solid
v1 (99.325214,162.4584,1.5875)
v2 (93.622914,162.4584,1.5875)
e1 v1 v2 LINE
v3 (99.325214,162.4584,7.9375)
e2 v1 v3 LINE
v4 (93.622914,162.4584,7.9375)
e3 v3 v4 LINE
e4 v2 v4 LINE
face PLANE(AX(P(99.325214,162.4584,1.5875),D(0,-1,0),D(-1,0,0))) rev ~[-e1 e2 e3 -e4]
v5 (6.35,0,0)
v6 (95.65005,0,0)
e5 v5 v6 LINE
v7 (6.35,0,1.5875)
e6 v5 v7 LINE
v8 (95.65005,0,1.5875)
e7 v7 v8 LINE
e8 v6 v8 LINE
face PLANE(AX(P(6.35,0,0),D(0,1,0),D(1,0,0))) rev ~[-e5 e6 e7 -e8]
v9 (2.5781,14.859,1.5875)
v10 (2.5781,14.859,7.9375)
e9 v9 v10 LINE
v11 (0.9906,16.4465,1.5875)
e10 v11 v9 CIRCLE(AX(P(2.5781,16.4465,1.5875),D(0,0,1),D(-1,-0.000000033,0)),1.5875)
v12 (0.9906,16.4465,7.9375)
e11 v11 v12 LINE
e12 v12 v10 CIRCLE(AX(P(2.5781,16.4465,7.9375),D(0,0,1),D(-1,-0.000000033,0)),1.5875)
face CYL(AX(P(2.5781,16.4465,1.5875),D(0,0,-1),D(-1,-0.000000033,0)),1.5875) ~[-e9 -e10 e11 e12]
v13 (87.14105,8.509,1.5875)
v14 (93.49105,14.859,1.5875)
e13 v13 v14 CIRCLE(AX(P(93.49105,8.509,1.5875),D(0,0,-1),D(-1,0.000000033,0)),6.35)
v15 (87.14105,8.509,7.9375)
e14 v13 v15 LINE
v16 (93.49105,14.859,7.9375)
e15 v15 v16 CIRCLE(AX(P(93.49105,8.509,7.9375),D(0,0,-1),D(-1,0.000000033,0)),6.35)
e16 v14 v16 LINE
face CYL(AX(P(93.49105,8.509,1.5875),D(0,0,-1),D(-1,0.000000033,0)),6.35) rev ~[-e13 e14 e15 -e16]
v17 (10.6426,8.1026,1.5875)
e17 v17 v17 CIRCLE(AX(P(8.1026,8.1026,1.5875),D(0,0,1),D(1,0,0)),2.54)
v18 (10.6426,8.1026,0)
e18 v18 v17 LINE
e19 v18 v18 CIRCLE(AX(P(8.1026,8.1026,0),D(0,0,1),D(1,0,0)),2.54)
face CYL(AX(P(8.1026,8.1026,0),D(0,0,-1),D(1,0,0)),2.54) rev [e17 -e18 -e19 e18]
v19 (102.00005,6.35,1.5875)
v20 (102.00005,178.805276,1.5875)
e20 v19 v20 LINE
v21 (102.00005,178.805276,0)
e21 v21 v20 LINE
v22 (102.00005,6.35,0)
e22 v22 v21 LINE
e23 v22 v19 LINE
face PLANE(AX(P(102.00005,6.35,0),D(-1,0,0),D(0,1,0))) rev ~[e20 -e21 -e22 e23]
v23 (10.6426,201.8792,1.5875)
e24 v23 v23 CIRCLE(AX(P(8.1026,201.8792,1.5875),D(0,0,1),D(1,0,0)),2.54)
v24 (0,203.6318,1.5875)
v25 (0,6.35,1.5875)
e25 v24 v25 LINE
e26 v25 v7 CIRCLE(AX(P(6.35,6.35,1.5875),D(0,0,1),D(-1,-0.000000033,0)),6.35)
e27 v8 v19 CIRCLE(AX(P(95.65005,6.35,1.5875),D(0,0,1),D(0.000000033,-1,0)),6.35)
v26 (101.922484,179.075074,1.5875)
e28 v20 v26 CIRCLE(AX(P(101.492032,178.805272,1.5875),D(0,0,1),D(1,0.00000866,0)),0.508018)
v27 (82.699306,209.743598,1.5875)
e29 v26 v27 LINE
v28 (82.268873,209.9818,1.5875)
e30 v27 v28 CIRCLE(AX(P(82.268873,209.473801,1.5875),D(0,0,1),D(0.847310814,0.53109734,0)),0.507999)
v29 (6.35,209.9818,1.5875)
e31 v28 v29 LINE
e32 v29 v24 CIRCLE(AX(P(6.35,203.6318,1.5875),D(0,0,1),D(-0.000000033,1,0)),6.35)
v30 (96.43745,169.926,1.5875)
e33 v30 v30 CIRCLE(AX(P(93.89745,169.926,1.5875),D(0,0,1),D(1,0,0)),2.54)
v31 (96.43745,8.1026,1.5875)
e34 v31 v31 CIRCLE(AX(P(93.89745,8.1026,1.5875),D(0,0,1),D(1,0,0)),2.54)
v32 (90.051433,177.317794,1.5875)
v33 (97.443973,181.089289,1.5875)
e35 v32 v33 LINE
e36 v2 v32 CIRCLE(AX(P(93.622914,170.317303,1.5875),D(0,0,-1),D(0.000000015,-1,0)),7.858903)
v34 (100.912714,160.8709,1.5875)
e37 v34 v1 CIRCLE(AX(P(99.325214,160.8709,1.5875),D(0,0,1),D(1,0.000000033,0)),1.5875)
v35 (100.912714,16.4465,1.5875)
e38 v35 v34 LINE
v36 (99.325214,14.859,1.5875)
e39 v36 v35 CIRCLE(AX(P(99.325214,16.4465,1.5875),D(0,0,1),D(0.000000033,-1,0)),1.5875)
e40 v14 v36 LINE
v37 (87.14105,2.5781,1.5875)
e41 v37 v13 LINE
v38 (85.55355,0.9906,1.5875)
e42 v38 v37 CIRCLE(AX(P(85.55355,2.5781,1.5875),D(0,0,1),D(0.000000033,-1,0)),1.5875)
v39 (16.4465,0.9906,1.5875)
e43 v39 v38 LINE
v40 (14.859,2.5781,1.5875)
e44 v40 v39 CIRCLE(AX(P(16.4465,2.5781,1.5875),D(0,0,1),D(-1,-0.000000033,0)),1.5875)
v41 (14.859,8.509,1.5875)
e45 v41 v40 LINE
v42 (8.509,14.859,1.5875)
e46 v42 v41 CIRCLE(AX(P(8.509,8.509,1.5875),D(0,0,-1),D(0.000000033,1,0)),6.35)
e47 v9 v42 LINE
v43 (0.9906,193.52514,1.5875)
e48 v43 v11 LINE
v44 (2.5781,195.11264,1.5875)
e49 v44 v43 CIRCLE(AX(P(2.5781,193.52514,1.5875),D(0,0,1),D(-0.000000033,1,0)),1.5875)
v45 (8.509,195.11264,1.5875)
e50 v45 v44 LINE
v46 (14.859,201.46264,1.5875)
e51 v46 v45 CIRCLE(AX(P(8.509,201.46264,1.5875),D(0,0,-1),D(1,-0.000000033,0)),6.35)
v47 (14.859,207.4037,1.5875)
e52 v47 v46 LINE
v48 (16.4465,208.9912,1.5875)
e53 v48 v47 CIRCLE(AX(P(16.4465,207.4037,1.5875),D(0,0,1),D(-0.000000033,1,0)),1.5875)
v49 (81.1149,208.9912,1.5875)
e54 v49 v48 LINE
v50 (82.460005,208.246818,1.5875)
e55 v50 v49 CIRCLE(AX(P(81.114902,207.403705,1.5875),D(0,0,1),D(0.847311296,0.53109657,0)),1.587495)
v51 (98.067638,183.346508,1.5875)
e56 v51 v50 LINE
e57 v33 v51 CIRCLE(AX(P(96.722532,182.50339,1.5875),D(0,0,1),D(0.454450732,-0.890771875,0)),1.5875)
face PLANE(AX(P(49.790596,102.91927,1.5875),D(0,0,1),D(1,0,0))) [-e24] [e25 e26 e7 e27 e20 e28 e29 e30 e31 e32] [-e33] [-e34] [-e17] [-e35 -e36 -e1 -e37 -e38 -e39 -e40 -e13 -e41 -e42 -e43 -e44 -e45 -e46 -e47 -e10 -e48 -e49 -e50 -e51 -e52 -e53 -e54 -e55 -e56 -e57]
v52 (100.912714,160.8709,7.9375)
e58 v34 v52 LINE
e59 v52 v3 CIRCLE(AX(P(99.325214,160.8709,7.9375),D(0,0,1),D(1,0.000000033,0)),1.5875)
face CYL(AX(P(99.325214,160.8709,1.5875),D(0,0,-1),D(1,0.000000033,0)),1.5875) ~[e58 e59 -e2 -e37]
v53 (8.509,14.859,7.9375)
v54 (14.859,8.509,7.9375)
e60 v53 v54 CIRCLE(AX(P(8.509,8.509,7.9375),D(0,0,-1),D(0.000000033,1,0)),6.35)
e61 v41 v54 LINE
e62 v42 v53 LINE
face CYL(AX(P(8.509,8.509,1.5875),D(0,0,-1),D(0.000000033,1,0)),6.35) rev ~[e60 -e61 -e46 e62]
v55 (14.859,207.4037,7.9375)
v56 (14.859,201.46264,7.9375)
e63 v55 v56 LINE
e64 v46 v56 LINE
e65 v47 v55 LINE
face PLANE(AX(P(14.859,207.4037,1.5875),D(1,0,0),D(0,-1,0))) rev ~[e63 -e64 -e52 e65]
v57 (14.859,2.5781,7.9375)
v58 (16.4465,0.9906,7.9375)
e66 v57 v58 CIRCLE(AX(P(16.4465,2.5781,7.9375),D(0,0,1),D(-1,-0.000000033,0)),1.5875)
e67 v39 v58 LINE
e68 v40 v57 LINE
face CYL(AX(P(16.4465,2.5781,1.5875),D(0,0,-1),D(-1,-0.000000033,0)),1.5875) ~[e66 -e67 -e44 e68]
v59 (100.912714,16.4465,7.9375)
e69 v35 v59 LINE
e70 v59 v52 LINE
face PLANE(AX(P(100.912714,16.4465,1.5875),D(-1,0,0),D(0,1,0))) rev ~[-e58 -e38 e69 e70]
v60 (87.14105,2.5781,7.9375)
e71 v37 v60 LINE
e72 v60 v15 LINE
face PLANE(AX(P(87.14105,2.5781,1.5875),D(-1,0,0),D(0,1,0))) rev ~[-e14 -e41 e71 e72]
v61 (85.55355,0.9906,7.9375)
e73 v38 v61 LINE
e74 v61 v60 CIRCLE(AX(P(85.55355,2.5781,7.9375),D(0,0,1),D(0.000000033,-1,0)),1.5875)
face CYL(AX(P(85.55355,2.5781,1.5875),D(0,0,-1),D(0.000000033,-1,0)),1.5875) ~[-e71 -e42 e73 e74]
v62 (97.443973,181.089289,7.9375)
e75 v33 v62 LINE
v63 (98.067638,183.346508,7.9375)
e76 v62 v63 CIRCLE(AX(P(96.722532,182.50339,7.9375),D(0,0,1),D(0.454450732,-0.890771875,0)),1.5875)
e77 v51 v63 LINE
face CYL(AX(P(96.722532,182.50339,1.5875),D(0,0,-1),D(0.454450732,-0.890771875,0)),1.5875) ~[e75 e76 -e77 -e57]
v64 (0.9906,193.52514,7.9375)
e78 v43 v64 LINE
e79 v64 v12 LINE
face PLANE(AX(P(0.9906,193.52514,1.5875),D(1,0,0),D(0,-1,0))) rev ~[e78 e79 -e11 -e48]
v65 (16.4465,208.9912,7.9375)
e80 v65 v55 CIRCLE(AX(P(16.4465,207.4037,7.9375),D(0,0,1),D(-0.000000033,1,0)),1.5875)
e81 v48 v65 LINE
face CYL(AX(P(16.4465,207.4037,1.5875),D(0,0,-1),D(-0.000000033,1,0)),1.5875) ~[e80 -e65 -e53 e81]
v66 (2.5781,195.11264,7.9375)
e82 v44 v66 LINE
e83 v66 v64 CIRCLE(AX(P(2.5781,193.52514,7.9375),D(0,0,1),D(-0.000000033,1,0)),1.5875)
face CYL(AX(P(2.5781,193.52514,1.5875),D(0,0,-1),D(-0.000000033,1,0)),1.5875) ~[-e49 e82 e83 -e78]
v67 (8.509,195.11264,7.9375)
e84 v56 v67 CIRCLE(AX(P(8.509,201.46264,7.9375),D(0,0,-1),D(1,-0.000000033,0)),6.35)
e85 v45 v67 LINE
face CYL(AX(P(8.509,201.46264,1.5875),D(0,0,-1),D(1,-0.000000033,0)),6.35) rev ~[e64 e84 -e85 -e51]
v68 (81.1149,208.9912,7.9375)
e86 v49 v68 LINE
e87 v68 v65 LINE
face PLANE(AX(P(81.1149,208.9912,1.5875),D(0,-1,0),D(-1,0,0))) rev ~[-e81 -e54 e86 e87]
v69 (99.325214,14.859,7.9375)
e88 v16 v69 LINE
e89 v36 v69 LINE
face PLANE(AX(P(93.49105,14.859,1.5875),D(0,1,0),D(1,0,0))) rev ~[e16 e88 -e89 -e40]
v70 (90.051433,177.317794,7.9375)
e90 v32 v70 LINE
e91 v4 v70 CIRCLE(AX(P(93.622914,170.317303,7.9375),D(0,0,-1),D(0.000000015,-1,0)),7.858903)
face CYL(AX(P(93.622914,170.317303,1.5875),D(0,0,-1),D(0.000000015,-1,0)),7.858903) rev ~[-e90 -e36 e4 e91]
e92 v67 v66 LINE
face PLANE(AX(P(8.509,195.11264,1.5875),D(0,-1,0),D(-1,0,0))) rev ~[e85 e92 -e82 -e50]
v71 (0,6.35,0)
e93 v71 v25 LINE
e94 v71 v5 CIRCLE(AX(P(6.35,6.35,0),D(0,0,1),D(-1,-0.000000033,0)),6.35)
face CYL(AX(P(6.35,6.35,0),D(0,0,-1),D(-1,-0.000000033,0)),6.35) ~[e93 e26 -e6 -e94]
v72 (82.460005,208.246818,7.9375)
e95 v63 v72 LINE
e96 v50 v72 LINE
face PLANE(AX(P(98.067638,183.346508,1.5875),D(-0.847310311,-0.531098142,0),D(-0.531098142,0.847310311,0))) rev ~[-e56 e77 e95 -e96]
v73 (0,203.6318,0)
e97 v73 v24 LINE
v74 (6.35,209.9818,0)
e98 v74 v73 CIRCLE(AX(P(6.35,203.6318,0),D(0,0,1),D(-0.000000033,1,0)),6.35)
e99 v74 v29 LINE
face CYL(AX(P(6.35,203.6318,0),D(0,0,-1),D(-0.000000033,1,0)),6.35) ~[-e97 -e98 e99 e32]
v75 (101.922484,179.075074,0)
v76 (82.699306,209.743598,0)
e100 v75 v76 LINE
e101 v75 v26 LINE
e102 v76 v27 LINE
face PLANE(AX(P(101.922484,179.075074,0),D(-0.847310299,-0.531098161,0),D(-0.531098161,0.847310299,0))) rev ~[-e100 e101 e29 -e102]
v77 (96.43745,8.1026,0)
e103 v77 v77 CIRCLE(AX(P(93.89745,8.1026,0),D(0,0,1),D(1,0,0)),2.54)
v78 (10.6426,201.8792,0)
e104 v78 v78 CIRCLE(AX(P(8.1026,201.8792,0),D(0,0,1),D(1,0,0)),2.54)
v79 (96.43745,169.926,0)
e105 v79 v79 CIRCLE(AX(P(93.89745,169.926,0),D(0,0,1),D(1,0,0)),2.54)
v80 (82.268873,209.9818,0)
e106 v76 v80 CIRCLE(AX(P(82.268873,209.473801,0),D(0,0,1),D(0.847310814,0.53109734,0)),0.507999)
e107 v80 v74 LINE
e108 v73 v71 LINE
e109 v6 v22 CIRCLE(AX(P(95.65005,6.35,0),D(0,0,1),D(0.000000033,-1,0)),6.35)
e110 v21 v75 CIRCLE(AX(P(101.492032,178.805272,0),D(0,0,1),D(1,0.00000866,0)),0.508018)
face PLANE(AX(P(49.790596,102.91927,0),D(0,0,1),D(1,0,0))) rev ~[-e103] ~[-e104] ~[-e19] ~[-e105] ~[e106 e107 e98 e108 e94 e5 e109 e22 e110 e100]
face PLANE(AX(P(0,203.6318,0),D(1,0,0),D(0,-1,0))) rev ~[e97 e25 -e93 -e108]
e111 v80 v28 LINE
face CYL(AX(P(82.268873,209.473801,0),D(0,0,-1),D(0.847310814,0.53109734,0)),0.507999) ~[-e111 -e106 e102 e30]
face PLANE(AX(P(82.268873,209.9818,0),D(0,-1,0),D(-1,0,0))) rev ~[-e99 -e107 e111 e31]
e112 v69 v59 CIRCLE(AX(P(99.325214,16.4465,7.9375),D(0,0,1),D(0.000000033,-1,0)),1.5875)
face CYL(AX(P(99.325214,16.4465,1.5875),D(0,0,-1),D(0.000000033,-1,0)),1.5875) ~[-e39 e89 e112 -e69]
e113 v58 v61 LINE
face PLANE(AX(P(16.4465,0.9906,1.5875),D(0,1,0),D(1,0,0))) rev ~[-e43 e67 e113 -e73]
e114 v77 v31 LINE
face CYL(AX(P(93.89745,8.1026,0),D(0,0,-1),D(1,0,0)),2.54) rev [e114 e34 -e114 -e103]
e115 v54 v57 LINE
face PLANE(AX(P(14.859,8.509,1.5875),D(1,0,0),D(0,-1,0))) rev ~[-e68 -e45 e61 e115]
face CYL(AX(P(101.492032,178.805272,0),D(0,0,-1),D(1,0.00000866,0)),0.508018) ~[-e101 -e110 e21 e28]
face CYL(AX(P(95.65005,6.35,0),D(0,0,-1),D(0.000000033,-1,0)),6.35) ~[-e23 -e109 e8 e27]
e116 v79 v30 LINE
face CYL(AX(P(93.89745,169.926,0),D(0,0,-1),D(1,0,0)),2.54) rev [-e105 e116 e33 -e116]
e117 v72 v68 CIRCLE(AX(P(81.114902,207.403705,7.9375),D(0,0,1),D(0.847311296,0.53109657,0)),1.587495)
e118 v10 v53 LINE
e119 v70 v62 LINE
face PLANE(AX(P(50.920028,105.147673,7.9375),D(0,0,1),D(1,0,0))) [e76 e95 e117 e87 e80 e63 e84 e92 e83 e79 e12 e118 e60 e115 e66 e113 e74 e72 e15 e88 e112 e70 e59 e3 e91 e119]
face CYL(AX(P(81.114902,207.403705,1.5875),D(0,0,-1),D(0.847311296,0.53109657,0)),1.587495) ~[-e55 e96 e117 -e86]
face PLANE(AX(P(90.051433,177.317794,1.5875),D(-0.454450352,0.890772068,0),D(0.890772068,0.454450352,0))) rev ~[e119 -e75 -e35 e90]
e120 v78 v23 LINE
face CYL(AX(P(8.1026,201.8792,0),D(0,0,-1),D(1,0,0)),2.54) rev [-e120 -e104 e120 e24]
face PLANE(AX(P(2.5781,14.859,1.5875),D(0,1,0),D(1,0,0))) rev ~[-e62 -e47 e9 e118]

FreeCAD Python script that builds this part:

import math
import FreeCAD as App
import Part
import Sketcher
from FreeCAD import Vector
Q = App.Units.Quantity

doc = App.newDocument("Part")
body = doc.addObject("PartDesign::Body", "Body")

# Sketch on XY plane
sketch1 = doc.addObject("Sketcher::SketchObject", "Sketch")
body.addObject(sketch1)
sketch1.AttachmentSupport = (doc.XY_Plane, [""])
sketch1.MapMode = "FlatFace"
sketch1.addGeometry([
    Part.ArcOfCircle(Part.Circle(Vector(6.35, 6.35, 0), Vector(0, 0, 1), 6.35), math.radians(-179.999998), math.radians(-90.000002)),  # 0
    Part.LineSegment(Vector(6.35, 0, 0), Vector(95.65005, 0, 0)),  # 1
    Part.ArcOfCircle(Part.Circle(Vector(95.65005, 6.35, 0), Vector(0, 0, 1), 6.35), math.radians(-89.999998), math.radians(-0.000002)),  # 2
    Part.LineSegment(Vector(102.00005, 6.35, 0), Vector(102.00005, 178.805276, 0)),  # 3
    Part.ArcOfCircle(Part.Circle(Vector(101.492032, 178.805272, 0), Vector(0, 0, 1), 0.508018), math.radians(0.000496), math.radians(32.079028)),  # 4
    Part.LineSegment(Vector(101.922484, 179.075074, 0), Vector(82.699306, 209.743598, 0)),  # 5
    Part.ArcOfCircle(Part.Circle(Vector(82.268873, 209.473801, 0), Vector(0, 0, 1), 0.507999), math.radians(32.079628), math.radians(90.000012)),  # 6
    Part.LineSegment(Vector(82.268873, 209.9818, 0), Vector(6.35, 209.9818, 0)),  # 7
    Part.ArcOfCircle(Part.Circle(Vector(6.35, 203.6318, 0), Vector(0, 0, 1), 6.35), math.radians(90.000002), math.radians(179.999998)),  # 8
    Part.LineSegment(Vector(0, 203.6318, 0), Vector(0, 6.35, 0)),  # 9
    Part.Circle(Vector(8.1026, 8.1026, 0), Vector(0, 0, 1), 2.54),  # 10
    Part.Circle(Vector(93.89745, 8.1026, 0), Vector(0, 0, 1), 2.54),  # 11
    Part.Circle(Vector(8.1026, 201.8792, 0), Vector(0, 0, 1), 2.54),  # 12
    Part.Circle(Vector(93.89745, 169.926, 0), Vector(0, 0, 1), 2.54),  # 13
], False)
sketch1.addConstraint([
    Sketcher.Constraint("Coincident", 0, 2, 1, 1),
    Sketcher.Constraint("Coincident", 1, 2, 2, 1),
    Sketcher.Constraint("Coincident", 2, 2, 3, 1),
    Sketcher.Constraint("Coincident", 3, 2, 4, 1),
    Sketcher.Constraint("Coincident", 4, 2, 5, 1),
    Sketcher.Constraint("Coincident", 5, 2, 6, 1),
    Sketcher.Constraint("Coincident", 6, 2, 7, 1),
    Sketcher.Constraint("Coincident", 7, 2, 8, 1),
    Sketcher.Constraint("Coincident", 8, 2, 9, 1),
    Sketcher.Constraint("Coincident", 9, 2, 0, 1),
    Sketcher.Constraint("Horizontal", 1),
    Sketcher.Constraint("Vertical", 3),
    Sketcher.Constraint("Horizontal", 7),
    Sketcher.Constraint("Vertical", 9),
    Sketcher.Constraint("PointOnObject", 0, 2, -1),
    Sketcher.Constraint("PointOnObject", 8, 2, -2),
    Sketcher.Constraint("Diameter", 10, Q("0.2 in")),
    Sketcher.Constraint("Diameter", 11, Q("0.2 in")),
    Sketcher.Constraint("Diameter", 12, Q("0.2 in")),
    Sketcher.Constraint("Diameter", 13, Q("0.2 in")),
    Sketcher.Constraint("Radius", 0, Q("0.25 in")),
    Sketcher.Constraint("Radius", 2, Q("0.25 in")),
    Sketcher.Constraint("Radius", 6, Q("0.02 in")),
    Sketcher.Constraint("Radius", 8, Q("0.25 in")),
    Sketcher.Constraint("DistanceY", 9, 2, 9, 1, Q("7.767 in")),
    Sketcher.Constraint("DistanceY", -1, 1, 13, 3, Q("6.69 in")),
    Sketcher.Constraint("DistanceX", -1, 1, 0, 2, Q("0.25 in")),
    Sketcher.Constraint("DistanceY", -1, 1, 2, 2, Q("0.25 in")),
    Sketcher.Constraint("DistanceX", -1, 1, 7, 2, Q("0.25 in")),
    Sketcher.Constraint("DistanceY", -1, 1, 9, 2, Q("0.25 in")),
    Sketcher.Constraint("DistanceX", 1, 2, 2, 2, Q("0.25 in")),
    Sketcher.Constraint("DistanceY", 8, 2, 7, 2, Q("0.25 in")),
    Sketcher.Constraint("DistanceX", -1, 1, 10, 3, Q("0.319 in")),
    Sketcher.Constraint("DistanceY", -1, 1, 10, 3, Q("0.319 in")),
    Sketcher.Constraint("DistanceY", -1, 1, 11, 3, Q("0.319 in")),
    Sketcher.Constraint("DistanceX", -1, 1, 12, 3, Q("0.319 in")),
    Sketcher.Constraint("DistanceY", -1, 1, 12, 3, Q("7.948 in")),
    Sketcher.Constraint("DistanceX", 11, 3, 2, 3, Q("0.069 in")),
    Sketcher.Constraint("DistanceX", 13, 3, 3, 2, Q("0.319 in")),
    Sketcher.Constraint("Radius", 4, Q("0.508018 mm")),
    Sketcher.Constraint("DistanceX", 1, 1, 1, 2, Q("89.30005 mm")),
    Sketcher.Constraint("DistanceY", -1, 1, 5, 2, Q("209.743598 mm")),
    Sketcher.Constraint("DistanceY", 3, 2, 4, 2, Q("0.269798 mm")),
    Sketcher.Constraint("Distance", 5, Q("36.195151 mm")),
    Sketcher.Constraint("DistanceX", 7, 2, 7, 1, Q("75.918873 mm")),
    Sketcher.Constraint("DistanceY", 3, 1, 3, 2, Q("172.455276 mm")),
    Sketcher.Constraint("DistanceY", -1, 1, 4, 3, Q("178.805272 mm")),
])
pad1 = doc.addObject("PartDesign::Pad", "Pad")
body.addObject(pad1)
pad1.Profile = sketch1
pad1.Length = Q("0.0625 in")

# Sketch on XY plane
sketch2 = doc.addObject("Sketcher::SketchObject", "Sketch001")
body.addObject(sketch2)
sketch2.AttachmentSupport = (doc.XY_Plane, [""])
sketch2.MapMode = "FlatFace"
sketch2.AttachmentOffset = App.Placement(Vector(0, 0, 0.0625 * 25.4), App.Rotation())
sketch2.addGeometry([
    Part.LineSegment(Vector(81.1, 209, 0), Vector(16.4, 209, 0)),  # 0
    Part.ArcOfCircle(Part.Circle(Vector(16.4, 207.4, 0), Vector(0, 0, 1), 1.6), math.radians(90), math.radians(180)),  # 1
    Part.LineSegment(Vector(14.9, 207.4, 0), Vector(14.9, 201.5, 0)),  # 2
    Part.ArcOfCircle(Part.Circle(Vector(8.5, 201.5, 0), Vector(0, 0, 1), 6.4), math.radians(-90), math.radians(0)),  # 3
    Part.LineSegment(Vector(8.5, 195.1, 0), Vector(2.6, 195.1, 0)),  # 4
    Part.ArcOfCircle(Part.Circle(Vector(2.6, 193.5, 0), Vector(0, 0, 1), 1.6), math.radians(90), math.radians(180)),  # 5
    Part.LineSegment(Vector(1, 193.5, 0), Vector(1, 16.4, 0)),  # 6
    Part.ArcOfCircle(Part.Circle(Vector(2.6, 16.4, 0), Vector(0, 0, 1), 1.6), math.radians(-180), math.radians(-90)),  # 7
    Part.LineSegment(Vector(2.6, 14.9, 0), Vector(8.5, 14.9, 0)),  # 8
    Part.ArcOfCircle(Part.Circle(Vector(8.5, 8.5, 0), Vector(0, 0, 1), 6.4), math.radians(0), math.radians(90)),  # 9
    Part.LineSegment(Vector(14.9, 8.5, 0), Vector(14.9, 2.6, 0)),  # 10
    Part.ArcOfCircle(Part.Circle(Vector(16.4, 2.6, 0), Vector(0, 0, 1), 1.6), math.radians(-180), math.radians(-90)),  # 11
    Part.LineSegment(Vector(16.4, 1, 0), Vector(85.6, 1, 0)),  # 12
    Part.ArcOfCircle(Part.Circle(Vector(85.6, 2.6, 0), Vector(0, 0, 1), 1.6), math.radians(-90), math.radians(0)),  # 13
    Part.LineSegment(Vector(87.1, 2.6, 0), Vector(87.1, 8.5, 0)),  # 14
    Part.ArcOfCircle(Part.Circle(Vector(93.5, 8.5, 0), Vector(0, 0, 1), 6.4), math.radians(90), math.radians(180)),  # 15
    Part.LineSegment(Vector(93.5, 14.9, 0), Vector(99.3, 14.9, 0)),  # 16
    Part.ArcOfCircle(Part.Circle(Vector(99.3, 16.4, 0), Vector(0, 0, 1), 1.6), math.radians(-90), math.radians(0)),  # 17
    Part.LineSegment(Vector(100.9, 16.4, 0), Vector(100.9, 160.9, 0)),  # 18
    Part.ArcOfCircle(Part.Circle(Vector(99.3, 160.9, 0), Vector(0, 0, 1), 1.6), math.radians(0), math.radians(90)),  # 19
    Part.LineSegment(Vector(99.3, 162.5, 0), Vector(93.6, 162.5, 0)),  # 20
    Part.ArcOfCircle(Part.Circle(Vector(93.6, 170.3, 0), Vector(0, 0, 1), 7.9), math.radians(117), math.radians(270)),  # 21
    Part.LineSegment(Vector(90.1, 177.3, 0), Vector(97.4, 181.1, 0)),  # 22
    Part.ArcOfCircle(Part.Circle(Vector(96.7, 182.5, 0), Vector(0, 0, 1), 1.6), math.radians(-63), math.radians(32)),  # 23
    Part.LineSegment(Vector(98.1, 183.3, 0), Vector(82.5, 208.2, 0)),  # 24
    Part.ArcOfCircle(Part.Circle(Vector(81.1, 207.4, 0), Vector(0, 0, 1), 1.6), math.radians(32), math.radians(90)),  # 25
], False)
sketch2.addConstraint([
    Sketcher.Constraint("Tangent", 0, 2, 1, 1),
    Sketcher.Constraint("Tangent", 1, 2, 2, 1),
    Sketcher.Constraint("Tangent", 2, 2, 3, 2),
    Sketcher.Constraint("Tangent", 3, 1, 4, 1),
    Sketcher.Constraint("Tangent", 4, 2, 5, 1),
    Sketcher.Constraint("Tangent", 5, 2, 6, 1),
    Sketcher.Constraint("Tangent", 6, 2, 7, 1),
    Sketcher.Constraint("Tangent", 7, 2, 8, 1),
    Sketcher.Constraint("Tangent", 8, 2, 9, 2),
    Sketcher.Constraint("Tangent", 9, 1, 10, 1),
    Sketcher.Constraint("Tangent", 10, 2, 11, 1),
    Sketcher.Constraint("Tangent", 11, 2, 12, 1),
    Sketcher.Constraint("Tangent", 12, 2, 13, 1),
    Sketcher.Constraint("Tangent", 13, 2, 14, 1),
    Sketcher.Constraint("Tangent", 14, 2, 15, 2),
    Sketcher.Constraint("Tangent", 15, 1, 16, 1),
    Sketcher.Constraint("Tangent", 16, 2, 17, 1),
    Sketcher.Constraint("Tangent", 17, 2, 18, 1),
    Sketcher.Constraint("Tangent", 18, 2, 19, 1),
    Sketcher.Constraint("Tangent", 19, 2, 20, 1),
    Sketcher.Constraint("Tangent", 20, 2, 21, 2),
    Sketcher.Constraint("Tangent", 21, 1, 22, 1),
    Sketcher.Constraint("Tangent", 22, 2, 23, 1),
    Sketcher.Constraint("Tangent", 23, 2, 24, 1),
    Sketcher.Constraint("Tangent", 24, 2, 25, 1),
    Sketcher.Constraint("Tangent", 25, 2, 0, 1),
    Sketcher.Constraint("Horizontal", 0),
    Sketcher.Constraint("Vertical", 2),
    Sketcher.Constraint("Horizontal", 4),
    Sketcher.Constraint("Vertical", 6),
    Sketcher.Constraint("Horizontal", 8),
    Sketcher.Constraint("Vertical", 10),
    Sketcher.Constraint("Horizontal", 12),
    Sketcher.Constraint("Vertical", 14),
    Sketcher.Constraint("Horizontal", 16),
    Sketcher.Constraint("Vertical", 18),
    Sketcher.Constraint("Horizontal", 20),
    Sketcher.Constraint("Equal", 1, 5),
    Sketcher.Constraint("Equal", 5, 7),
    Sketcher.Constraint("Equal", 3, 9),
    Sketcher.Constraint("Equal", 7, 11),
    Sketcher.Constraint("Equal", 11, 13),
    Sketcher.Constraint("Equal", 9, 15),
    Sketcher.Constraint("Equal", 13, 17),
    Sketcher.Constraint("Equal", 17, 19),
    Sketcher.Constraint("Equal", 19, 23),
    Sketcher.Constraint("Horizontal", 9, 3, 15, 3),
    Sketcher.Constraint("Vertical", 3, 3, 9, 3),
    Sketcher.Constraint("Equal", 8, 10),
    Sketcher.Constraint("Radius", 3, Q("0.25 in")),
    Sketcher.Constraint("Radius", 1, Q("0.0625 in")),
    Sketcher.Constraint("Radius", 25, Q("0.0624998 in")),
    Sketcher.Constraint("DistanceX", 0, 2, 0, 1, Q("2.546 in")),
    Sketcher.Constraint("DistanceY", 18, 1, 18, 2, Q("5.686 in")),
    Sketcher.Constraint("DistanceX", 4, 2, 4, 1, Q("0.2335 in")),
    Sketcher.Constraint("DistanceX", 20, 2, 20, 1, Q("0.2245 in")),
    Sketcher.Constraint("DistanceY", 2, 2, 2, 1, Q("0.2339 in")),
    Sketcher.Constraint("DistanceY", 6, 2, 6, 1, Q("6.9716 in")),
    Sketcher.Constraint("DistanceX", -1, 1, 3, 3, Q("0.335 in")),
    Sketcher.Constraint("DistanceY", -1, 1, 9, 3, Q("0.335 in")),
    Sketcher.Constraint("Radius", 21, Q("7.858903 mm")),
    Sketcher.Constraint("DistanceX", 12, 1, 12, 2, Q("69.10705 mm")),
    Sketcher.Constraint("DistanceX", 21, 1, 23, 3, Q("6.671099 mm")),
    Sketcher.Constraint("DistanceY", 22, 2, 23, 3, Q("1.414101 mm")),
    Sketcher.Constraint("DistanceX", 16, 1, 16, 2, Q("5.834164 mm")),
])
pad2 = doc.addObject("PartDesign::Pad", "Pad001")
body.addObject(pad2)
pad2.Profile = sketch2
pad2.Length = Q("0.25 in")

doc.recompute()
